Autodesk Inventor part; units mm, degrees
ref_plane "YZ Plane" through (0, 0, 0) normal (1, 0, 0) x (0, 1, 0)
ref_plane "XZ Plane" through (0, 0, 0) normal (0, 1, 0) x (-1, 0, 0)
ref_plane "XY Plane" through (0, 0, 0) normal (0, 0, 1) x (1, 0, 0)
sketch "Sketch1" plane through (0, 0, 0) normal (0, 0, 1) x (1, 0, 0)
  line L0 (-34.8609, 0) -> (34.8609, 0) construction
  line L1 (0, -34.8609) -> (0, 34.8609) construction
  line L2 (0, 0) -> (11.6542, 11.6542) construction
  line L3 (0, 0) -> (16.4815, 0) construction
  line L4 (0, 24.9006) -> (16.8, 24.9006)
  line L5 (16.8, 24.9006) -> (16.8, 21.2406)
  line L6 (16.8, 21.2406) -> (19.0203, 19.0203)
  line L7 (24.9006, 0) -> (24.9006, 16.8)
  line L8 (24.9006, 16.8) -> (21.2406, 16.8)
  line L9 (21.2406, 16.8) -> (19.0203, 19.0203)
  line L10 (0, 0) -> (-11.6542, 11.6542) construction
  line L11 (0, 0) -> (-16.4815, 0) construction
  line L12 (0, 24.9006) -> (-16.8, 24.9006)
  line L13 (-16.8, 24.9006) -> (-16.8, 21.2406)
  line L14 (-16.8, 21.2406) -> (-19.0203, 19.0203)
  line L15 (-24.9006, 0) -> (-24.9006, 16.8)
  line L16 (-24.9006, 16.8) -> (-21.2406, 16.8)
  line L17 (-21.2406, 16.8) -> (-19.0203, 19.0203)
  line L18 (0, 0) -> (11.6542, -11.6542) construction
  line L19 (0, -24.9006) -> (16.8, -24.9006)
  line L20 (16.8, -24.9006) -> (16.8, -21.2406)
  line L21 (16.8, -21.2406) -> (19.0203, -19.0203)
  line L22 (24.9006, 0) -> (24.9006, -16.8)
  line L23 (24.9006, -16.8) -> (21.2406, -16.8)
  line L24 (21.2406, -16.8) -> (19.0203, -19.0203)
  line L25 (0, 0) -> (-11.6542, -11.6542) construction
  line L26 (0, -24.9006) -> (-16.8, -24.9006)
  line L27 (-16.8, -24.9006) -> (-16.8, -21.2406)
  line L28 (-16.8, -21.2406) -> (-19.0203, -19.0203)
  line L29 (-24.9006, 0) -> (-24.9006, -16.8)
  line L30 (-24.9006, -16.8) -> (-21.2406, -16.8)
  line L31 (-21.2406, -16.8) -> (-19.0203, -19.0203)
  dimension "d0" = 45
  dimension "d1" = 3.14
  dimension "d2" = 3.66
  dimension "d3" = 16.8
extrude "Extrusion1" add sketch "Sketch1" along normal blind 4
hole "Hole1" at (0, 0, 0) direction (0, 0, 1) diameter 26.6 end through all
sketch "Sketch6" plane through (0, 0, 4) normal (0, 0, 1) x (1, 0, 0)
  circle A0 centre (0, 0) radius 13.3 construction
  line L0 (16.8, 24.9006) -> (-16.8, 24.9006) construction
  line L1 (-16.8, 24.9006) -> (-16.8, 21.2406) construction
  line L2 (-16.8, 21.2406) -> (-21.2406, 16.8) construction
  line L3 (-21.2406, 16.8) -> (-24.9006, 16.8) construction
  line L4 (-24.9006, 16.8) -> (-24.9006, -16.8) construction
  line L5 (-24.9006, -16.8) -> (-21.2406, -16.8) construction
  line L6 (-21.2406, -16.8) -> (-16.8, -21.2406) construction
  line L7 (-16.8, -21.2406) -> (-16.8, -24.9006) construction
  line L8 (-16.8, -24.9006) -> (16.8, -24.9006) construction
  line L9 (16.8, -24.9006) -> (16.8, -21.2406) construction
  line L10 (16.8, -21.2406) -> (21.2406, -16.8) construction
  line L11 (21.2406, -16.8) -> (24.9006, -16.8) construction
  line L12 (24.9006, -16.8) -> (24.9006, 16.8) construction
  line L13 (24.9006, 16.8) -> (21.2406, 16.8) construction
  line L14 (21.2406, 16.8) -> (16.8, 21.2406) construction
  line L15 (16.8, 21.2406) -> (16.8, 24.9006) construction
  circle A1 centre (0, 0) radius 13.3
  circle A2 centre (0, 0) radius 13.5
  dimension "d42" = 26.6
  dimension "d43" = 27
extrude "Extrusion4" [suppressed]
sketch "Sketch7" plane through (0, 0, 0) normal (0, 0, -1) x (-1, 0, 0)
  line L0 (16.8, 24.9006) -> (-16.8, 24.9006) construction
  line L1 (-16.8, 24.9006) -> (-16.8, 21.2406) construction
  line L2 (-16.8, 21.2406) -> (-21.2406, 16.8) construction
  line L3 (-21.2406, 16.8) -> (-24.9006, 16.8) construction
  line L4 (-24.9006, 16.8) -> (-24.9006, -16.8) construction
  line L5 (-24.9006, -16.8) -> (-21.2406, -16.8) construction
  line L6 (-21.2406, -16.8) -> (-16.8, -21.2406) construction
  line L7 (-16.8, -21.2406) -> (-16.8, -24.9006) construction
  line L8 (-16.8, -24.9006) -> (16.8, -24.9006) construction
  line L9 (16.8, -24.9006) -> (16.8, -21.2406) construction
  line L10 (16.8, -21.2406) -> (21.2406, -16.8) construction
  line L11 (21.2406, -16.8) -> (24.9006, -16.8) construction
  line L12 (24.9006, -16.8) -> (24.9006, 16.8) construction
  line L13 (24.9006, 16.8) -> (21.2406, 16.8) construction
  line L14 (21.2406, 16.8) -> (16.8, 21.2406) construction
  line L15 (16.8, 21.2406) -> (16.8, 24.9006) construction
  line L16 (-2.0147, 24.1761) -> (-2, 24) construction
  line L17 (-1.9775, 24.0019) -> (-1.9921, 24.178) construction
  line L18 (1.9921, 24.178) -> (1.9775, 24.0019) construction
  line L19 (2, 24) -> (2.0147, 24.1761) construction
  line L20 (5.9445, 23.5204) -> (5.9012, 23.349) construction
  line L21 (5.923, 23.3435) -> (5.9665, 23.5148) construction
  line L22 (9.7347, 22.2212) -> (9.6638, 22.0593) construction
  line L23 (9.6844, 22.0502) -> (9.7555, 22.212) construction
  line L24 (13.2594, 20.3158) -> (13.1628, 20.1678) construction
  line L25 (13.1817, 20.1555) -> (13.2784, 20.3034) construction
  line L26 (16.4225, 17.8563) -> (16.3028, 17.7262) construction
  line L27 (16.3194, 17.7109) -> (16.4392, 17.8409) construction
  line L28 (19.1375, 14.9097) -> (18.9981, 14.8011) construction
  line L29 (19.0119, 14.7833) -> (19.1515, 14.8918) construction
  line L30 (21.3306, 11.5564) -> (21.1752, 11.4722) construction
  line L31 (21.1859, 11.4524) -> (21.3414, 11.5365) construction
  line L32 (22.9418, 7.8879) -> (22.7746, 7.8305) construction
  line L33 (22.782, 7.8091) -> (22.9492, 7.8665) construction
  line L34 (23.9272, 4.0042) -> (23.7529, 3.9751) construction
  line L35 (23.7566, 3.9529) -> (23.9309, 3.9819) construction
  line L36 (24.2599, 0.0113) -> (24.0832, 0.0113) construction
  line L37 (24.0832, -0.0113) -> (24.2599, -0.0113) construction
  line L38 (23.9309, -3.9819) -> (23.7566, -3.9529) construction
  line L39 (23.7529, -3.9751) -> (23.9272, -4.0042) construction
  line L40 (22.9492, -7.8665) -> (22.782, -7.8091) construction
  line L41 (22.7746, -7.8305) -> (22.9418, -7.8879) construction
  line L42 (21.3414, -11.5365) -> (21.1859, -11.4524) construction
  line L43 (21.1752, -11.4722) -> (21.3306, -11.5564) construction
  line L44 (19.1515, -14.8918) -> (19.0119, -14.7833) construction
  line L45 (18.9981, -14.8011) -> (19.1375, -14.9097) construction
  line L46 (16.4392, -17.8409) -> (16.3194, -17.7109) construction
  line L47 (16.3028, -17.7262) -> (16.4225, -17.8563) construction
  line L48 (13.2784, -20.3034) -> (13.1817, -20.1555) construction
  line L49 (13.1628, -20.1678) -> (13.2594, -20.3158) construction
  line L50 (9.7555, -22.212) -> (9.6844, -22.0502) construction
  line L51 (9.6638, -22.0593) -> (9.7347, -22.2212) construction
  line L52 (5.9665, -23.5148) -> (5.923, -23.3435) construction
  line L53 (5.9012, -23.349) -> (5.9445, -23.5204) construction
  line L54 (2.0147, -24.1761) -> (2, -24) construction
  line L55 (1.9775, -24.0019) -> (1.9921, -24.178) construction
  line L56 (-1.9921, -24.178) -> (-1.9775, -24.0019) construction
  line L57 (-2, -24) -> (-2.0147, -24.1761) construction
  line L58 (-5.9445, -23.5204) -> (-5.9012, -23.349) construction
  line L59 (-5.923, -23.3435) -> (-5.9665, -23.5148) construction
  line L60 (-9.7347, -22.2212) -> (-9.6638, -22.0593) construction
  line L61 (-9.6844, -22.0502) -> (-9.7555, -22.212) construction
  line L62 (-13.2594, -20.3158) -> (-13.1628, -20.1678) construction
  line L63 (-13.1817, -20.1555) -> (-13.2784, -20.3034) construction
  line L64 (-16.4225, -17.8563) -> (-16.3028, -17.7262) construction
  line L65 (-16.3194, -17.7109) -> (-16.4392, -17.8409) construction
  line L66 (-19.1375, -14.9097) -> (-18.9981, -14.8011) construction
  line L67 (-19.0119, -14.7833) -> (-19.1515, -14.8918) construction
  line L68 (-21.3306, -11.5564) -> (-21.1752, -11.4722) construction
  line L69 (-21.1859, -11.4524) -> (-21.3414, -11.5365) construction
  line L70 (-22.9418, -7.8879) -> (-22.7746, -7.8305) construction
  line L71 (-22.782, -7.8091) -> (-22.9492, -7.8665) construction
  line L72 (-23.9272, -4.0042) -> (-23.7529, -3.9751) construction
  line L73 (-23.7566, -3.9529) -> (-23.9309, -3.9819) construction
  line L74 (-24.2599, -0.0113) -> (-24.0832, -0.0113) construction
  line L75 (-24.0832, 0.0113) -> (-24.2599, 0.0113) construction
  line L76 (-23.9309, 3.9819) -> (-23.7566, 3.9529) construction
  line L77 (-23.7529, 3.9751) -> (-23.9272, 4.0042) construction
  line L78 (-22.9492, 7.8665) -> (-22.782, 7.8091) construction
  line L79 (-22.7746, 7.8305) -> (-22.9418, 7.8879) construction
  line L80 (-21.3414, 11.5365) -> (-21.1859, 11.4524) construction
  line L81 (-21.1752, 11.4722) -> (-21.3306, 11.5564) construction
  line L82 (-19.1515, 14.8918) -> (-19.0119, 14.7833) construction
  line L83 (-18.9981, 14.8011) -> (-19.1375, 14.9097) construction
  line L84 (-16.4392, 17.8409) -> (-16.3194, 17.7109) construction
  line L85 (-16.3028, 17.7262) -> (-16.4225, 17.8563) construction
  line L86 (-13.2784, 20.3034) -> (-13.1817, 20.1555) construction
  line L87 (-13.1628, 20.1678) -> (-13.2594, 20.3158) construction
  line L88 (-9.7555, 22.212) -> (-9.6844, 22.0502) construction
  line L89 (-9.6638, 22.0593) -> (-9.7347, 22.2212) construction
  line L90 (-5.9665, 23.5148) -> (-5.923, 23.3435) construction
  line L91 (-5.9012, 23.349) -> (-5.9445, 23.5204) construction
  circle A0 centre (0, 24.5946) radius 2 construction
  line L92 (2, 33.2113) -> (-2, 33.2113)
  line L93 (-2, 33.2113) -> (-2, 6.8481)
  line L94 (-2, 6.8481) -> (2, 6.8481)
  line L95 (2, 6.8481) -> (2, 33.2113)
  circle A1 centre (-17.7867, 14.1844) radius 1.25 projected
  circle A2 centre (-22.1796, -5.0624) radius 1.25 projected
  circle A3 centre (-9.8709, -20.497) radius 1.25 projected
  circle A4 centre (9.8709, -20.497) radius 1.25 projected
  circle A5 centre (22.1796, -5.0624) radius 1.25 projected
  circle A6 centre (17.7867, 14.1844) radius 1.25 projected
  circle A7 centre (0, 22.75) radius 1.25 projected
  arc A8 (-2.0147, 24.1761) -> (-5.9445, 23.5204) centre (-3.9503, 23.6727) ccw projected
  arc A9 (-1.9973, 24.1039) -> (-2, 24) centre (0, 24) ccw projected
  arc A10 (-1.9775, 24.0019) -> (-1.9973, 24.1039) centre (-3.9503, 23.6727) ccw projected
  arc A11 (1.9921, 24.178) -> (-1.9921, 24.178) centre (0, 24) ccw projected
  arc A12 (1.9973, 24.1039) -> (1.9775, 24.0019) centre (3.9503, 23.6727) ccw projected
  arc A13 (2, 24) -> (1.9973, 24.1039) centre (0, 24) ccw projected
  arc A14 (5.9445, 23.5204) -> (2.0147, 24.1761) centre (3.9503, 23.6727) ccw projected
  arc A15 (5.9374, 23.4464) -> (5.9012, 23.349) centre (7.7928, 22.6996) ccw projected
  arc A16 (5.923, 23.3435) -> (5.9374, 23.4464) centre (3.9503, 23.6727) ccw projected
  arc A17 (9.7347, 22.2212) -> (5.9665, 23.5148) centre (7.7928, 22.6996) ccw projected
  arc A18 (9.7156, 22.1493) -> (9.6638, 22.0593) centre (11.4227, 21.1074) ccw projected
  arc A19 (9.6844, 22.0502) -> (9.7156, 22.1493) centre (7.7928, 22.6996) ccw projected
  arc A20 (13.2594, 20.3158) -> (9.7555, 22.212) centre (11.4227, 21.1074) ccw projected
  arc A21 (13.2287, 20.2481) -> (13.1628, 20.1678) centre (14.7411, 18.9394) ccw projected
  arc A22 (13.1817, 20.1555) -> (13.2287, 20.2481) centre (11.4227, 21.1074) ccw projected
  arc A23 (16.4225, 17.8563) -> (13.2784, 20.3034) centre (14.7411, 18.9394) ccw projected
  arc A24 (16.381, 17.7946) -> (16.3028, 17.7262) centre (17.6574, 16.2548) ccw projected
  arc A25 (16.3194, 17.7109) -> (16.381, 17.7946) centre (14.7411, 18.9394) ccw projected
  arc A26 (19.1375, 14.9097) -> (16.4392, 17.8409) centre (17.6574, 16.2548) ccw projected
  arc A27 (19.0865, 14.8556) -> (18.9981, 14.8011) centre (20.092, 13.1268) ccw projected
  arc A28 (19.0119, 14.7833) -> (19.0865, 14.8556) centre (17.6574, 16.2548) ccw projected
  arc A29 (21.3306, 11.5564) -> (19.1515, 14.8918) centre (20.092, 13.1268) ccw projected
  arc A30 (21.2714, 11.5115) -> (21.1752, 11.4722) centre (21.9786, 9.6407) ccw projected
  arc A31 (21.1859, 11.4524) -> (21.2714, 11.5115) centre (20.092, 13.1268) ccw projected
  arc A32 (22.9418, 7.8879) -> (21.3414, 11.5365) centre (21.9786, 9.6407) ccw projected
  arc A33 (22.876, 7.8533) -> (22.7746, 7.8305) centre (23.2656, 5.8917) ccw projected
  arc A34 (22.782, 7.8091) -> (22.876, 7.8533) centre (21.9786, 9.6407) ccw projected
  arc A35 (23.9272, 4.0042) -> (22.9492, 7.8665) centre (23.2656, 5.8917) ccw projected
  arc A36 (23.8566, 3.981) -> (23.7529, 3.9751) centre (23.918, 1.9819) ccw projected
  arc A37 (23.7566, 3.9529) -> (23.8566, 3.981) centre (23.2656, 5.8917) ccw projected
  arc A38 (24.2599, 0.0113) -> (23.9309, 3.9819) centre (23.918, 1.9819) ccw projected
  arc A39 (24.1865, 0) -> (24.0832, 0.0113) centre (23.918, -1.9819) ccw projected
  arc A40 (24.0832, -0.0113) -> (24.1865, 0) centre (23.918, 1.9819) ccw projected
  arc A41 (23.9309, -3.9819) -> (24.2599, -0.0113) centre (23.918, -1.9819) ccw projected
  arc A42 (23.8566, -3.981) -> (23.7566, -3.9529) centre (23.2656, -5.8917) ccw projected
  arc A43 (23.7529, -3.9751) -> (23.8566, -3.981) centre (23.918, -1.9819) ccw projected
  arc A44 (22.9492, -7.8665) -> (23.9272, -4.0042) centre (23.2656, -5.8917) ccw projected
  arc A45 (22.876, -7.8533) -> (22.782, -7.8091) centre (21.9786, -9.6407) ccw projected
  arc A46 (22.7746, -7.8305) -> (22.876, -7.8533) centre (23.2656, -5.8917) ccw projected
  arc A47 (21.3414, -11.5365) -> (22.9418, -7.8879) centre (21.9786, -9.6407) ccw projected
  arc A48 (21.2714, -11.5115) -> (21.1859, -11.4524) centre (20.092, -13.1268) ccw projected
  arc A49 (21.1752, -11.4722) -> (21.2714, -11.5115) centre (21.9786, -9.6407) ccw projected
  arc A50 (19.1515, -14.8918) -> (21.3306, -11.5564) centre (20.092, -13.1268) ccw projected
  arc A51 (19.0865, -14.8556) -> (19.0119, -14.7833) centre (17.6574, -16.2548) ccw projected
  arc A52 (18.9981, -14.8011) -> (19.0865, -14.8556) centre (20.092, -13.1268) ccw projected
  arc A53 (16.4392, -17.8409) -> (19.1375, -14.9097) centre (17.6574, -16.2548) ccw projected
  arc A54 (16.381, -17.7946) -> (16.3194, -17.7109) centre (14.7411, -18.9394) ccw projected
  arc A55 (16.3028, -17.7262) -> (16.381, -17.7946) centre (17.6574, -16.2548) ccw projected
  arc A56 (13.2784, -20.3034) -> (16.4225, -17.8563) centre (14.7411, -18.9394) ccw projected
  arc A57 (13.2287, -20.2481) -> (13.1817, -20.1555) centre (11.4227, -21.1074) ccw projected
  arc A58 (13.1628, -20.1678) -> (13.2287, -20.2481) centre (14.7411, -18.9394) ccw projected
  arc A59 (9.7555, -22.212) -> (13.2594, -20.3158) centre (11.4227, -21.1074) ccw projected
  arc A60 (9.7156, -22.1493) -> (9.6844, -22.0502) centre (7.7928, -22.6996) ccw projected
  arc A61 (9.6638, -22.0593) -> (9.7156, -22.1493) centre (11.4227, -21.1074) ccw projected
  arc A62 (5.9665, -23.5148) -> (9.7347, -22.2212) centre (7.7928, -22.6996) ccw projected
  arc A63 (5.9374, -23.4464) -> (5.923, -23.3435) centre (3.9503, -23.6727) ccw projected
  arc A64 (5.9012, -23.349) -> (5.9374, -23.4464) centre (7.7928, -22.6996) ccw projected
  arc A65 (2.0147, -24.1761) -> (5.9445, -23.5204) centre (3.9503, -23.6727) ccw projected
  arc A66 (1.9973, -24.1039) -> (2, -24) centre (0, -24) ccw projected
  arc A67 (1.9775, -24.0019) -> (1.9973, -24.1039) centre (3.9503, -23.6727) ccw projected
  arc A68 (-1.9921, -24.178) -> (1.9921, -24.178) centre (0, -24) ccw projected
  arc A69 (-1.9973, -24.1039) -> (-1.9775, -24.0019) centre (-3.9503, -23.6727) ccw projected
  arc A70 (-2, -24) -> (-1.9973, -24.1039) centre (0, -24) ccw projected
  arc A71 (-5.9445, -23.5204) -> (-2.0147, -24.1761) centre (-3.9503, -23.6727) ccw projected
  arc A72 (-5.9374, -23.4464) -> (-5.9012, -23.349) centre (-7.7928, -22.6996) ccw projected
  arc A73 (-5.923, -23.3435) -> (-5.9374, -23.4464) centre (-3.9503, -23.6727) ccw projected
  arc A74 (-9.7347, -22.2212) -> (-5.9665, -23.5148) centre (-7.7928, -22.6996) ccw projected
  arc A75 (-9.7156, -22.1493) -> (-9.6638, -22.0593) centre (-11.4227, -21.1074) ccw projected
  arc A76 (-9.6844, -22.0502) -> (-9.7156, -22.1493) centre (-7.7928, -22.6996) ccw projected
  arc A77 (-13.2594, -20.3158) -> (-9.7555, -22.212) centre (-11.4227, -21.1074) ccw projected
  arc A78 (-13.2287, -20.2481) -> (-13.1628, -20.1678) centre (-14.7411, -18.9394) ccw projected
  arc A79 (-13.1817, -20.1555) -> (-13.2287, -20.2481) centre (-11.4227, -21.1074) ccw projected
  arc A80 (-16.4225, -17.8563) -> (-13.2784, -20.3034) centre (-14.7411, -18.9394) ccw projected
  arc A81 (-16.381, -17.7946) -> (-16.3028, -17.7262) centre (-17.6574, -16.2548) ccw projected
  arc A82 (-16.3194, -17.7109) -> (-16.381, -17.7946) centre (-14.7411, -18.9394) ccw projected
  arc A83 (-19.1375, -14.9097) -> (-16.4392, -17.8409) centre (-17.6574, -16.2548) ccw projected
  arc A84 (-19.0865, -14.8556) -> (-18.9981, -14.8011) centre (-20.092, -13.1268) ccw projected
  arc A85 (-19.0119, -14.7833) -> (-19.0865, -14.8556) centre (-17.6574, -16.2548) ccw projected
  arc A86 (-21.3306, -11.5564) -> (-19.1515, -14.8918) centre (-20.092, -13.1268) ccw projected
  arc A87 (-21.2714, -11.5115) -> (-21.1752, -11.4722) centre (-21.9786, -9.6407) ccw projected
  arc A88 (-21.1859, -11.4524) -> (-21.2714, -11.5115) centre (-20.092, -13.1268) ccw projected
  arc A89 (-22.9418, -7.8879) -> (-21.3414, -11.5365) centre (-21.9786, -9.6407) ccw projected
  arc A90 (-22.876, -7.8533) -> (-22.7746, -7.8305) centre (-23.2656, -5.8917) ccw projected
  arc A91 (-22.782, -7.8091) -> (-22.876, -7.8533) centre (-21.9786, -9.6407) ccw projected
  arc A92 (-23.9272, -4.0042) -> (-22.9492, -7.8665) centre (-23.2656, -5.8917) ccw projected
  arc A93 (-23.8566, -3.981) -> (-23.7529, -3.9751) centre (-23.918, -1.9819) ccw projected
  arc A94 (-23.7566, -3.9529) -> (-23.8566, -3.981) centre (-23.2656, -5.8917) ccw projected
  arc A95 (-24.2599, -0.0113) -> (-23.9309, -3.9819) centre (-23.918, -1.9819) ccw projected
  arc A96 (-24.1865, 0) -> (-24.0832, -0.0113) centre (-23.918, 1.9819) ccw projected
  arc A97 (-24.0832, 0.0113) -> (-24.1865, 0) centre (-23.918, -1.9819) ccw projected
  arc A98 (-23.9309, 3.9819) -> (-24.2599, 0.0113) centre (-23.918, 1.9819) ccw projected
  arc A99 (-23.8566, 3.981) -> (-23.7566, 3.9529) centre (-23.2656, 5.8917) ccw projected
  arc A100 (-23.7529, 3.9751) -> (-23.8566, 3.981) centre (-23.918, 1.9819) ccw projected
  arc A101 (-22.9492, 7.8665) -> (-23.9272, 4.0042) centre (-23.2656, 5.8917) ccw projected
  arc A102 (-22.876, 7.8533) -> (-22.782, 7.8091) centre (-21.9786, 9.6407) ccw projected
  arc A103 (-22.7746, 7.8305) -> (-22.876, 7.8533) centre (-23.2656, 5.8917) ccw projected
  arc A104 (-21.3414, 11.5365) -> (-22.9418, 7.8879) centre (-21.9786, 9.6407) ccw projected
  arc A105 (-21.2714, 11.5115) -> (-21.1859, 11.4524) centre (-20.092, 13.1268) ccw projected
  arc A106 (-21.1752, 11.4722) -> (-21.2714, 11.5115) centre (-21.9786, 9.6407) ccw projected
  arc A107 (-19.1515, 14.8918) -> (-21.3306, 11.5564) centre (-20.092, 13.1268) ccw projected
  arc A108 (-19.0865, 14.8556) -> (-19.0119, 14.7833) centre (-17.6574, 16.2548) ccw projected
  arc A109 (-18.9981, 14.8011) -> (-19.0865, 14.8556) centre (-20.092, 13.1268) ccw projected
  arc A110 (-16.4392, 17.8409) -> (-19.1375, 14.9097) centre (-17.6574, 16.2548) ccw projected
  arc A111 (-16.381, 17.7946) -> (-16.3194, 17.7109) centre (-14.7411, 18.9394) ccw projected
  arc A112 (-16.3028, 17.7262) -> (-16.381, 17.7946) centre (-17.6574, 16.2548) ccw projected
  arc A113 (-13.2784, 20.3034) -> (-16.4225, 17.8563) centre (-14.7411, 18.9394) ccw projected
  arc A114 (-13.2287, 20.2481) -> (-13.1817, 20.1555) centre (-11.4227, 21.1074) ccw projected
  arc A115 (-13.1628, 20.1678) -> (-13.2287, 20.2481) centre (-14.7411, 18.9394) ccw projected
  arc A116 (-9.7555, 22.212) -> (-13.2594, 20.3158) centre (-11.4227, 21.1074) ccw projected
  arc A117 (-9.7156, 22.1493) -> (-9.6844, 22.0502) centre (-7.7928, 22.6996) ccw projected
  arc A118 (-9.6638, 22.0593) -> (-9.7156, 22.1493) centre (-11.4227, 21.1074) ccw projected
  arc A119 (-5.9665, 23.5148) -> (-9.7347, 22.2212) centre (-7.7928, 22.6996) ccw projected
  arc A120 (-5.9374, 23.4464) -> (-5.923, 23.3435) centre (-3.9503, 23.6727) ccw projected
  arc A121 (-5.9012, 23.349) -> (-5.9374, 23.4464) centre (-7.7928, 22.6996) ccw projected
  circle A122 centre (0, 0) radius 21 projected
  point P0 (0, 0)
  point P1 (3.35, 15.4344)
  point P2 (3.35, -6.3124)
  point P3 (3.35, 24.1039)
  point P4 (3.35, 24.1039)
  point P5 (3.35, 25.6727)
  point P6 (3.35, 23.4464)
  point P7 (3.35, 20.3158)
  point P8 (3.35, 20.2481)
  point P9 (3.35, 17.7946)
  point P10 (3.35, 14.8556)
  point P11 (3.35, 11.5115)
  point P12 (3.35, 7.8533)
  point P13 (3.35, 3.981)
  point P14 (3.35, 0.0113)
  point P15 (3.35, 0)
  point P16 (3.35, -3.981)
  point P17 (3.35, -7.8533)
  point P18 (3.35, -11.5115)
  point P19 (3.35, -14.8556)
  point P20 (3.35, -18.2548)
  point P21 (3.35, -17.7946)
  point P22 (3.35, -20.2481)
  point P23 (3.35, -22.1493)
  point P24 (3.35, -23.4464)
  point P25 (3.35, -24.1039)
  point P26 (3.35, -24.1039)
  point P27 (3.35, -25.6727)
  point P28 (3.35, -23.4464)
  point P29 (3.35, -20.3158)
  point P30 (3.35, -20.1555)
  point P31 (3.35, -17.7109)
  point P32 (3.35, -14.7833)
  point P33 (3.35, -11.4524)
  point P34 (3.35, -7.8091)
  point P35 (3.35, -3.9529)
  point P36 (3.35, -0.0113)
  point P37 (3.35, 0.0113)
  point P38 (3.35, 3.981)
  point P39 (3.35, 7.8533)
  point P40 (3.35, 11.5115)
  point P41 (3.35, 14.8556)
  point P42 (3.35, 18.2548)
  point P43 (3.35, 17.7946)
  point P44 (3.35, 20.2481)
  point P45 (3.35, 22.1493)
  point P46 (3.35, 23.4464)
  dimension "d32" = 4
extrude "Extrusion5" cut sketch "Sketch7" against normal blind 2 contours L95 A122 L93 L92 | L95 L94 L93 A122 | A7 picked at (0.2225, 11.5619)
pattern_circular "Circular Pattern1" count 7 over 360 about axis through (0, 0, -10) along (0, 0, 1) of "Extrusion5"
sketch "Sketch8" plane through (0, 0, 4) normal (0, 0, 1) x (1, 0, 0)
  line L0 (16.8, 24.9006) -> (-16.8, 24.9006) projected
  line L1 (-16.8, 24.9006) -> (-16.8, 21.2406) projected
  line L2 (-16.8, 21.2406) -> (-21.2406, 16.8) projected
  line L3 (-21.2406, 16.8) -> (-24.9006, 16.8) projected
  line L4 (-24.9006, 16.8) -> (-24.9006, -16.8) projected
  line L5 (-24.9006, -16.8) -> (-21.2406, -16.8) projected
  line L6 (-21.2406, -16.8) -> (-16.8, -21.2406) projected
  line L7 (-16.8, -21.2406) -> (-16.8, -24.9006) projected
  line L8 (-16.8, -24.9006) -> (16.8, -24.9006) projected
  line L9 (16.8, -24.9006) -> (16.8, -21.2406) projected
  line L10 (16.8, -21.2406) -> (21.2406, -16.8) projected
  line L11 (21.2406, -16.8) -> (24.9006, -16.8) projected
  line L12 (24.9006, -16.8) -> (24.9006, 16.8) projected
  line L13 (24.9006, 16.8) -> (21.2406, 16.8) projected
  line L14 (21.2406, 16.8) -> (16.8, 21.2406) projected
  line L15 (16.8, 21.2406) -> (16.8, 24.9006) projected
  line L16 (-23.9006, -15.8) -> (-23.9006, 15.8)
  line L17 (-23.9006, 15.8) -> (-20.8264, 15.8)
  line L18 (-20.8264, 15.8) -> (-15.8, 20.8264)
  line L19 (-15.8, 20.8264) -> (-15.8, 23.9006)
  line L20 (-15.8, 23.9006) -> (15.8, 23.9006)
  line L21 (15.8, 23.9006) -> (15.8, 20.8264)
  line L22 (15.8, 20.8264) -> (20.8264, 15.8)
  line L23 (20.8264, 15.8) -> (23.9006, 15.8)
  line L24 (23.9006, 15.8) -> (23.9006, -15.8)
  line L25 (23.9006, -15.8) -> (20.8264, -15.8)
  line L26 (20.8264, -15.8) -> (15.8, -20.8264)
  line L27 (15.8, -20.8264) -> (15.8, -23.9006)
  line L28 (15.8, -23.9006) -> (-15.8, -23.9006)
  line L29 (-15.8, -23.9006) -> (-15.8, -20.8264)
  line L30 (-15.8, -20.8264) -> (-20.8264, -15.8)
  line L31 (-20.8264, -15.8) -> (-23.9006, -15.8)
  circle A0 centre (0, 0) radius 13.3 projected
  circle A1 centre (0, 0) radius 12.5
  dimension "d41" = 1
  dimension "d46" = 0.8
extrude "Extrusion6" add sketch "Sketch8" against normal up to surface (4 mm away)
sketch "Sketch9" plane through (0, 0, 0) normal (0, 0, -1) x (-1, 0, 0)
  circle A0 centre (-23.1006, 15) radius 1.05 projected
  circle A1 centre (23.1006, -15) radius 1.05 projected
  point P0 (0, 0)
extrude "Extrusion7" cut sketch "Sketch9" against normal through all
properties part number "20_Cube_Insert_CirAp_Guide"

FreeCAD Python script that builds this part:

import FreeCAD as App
import Part
import Sketcher

doc = App.newDocument("Part")
body = doc.addObject("PartDesign::Body", "Body")

sketch1 = doc.addObject("Sketcher::SketchObject", "Sketch")
body.addObject(sketch1)
sketch1.AttachmentSupport = (doc.XY_Plane, [""])
sketch1.MapMode = "FlatFace"
sketch1.addGeometry([
    Part.LineSegment(App.Vector(16.8, 24.9, 0), App.Vector(-16.8, 24.9, 0)),
    Part.LineSegment(App.Vector(-16.8, 24.9, 0), App.Vector(-16.8, 21.2, 0)),
    Part.LineSegment(App.Vector(-16.8, 21.2, 0), App.Vector(-21.2, 16.8, 0)),
    Part.LineSegment(App.Vector(-21.2, 16.8, 0), App.Vector(-24.9, 16.8, 0)),
    Part.LineSegment(App.Vector(-24.9, 16.8, 0), App.Vector(-24.9, -16.8, 0)),
    Part.LineSegment(App.Vector(-24.9, -16.8, 0), App.Vector(-21.2, -16.8, 0)),
    Part.LineSegment(App.Vector(-21.2, -16.8, 0), App.Vector(-16.8, -21.2, 0)),
    Part.LineSegment(App.Vector(-16.8, -21.2, 0), App.Vector(-16.8, -24.9, 0)),
    Part.LineSegment(App.Vector(-16.8, -24.9, 0), App.Vector(16.8, -24.9, 0)),
    Part.LineSegment(App.Vector(16.8, -24.9, 0), App.Vector(16.8, -21.2, 0)),
    Part.LineSegment(App.Vector(16.8, -21.2, 0), App.Vector(21.2, -16.8, 0)),
    Part.LineSegment(App.Vector(21.2, -16.8, 0), App.Vector(24.9, -16.8, 0)),
    Part.LineSegment(App.Vector(24.9, -16.8, 0), App.Vector(24.9, 16.8, 0)),
    Part.LineSegment(App.Vector(24.9, 16.8, 0), App.Vector(21.2, 16.8, 0)),
    Part.LineSegment(App.Vector(21.2, 16.8, 0), App.Vector(16.8, 21.2, 0)),
    Part.LineSegment(App.Vector(16.8, 21.2, 0), App.Vector(16.8, 24.9, 0)),
], False)
sketch1.addConstraint([
    Sketcher.Constraint("Coincident", 0, 2, 1, 1),
    Sketcher.Constraint("Coincident", 1, 2, 2, 1),
    Sketcher.Constraint("Coincident", 2, 2, 3, 1),
    Sketcher.Constraint("Coincident", 3, 2, 4, 1),
    Sketcher.Constraint("Coincident", 4, 2, 5, 1),
    Sketcher.Constraint("Coincident", 5, 2, 6, 1),
    Sketcher.Constraint("Coincident", 6, 2, 7, 1),
    Sketcher.Constraint("Coincident", 7, 2, 8, 1),
    Sketcher.Constraint("Coincident", 8, 2, 9, 1),
    Sketcher.Constraint("Coincident", 9, 2, 10, 1),
    Sketcher.Constraint("Coincident", 10, 2, 11, 1),
    Sketcher.Constraint("Coincident", 11, 2, 12, 1),
    Sketcher.Constraint("Coincident", 12, 2, 13, 1),
    Sketcher.Constraint("Coincident", 13, 2, 14, 1),
    Sketcher.Constraint("Coincident", 14, 2, 15, 1),
    Sketcher.Constraint("Coincident", 15, 2, 0, 1),
    Sketcher.Constraint("Horizontal", 0),
    Sketcher.Constraint("Vertical", 1),
    Sketcher.Constraint("Horizontal", 3),
    Sketcher.Constraint("Vertical", 4),
    Sketcher.Constraint("Horizontal", 5),
    Sketcher.Constraint("Vertical", 7),
    Sketcher.Constraint("Horizontal", 8),
    Sketcher.Constraint("Vertical", 9),
    Sketcher.Constraint("Horizontal", 11),
    Sketcher.Constraint("Vertical", 12),
    Sketcher.Constraint("Horizontal", 13),
    Sketcher.Constraint("Vertical", 15),
    Sketcher.Constraint("Symmetric", 0, 2, 8, 2, -1, 1),
    Sketcher.Constraint("Symmetric", 2, 2, 10, 2, -1, 1),
    Sketcher.Constraint("Symmetric", 4, 2, 12, 2, -1, 1),
    Sketcher.Constraint("Symmetric", 6, 2, 14, 2, -1, 1),
    Sketcher.Constraint("Symmetric", 6, 2, 9, 2, -2),
    Sketcher.Constraint("Symmetric", 5, 2, 10, 2, -2),
    Sketcher.Constraint("Perpendicular", 2, 6),
    Sketcher.Constraint("Perpendicular", 6, 10),
    Sketcher.Constraint("Perpendicular", 10, 14),
    Sketcher.Constraint("Equal", 13, 1),
    Sketcher.Constraint("Equal", 8, 4),
    Sketcher.Constraint("DistanceX", 3, 2, 3, 1, 3.66),
    Sketcher.Constraint("DistanceX", 0, 2, -1, 1, 16.8),
    Sketcher.Constraint("Distance", 2, 6.28),
])
pad1 = doc.addObject("PartDesign::Pad", "Pad")
body.addObject(pad1)
pad1.Profile = sketch1
pad1.Length = 4

sketch2 = doc.addObject("Sketcher::SketchObject", "Sketch001")
body.addObject(sketch2)
sketch2.AttachmentSupport = (doc.XY_Plane, [""])
sketch2.MapMode = "FlatFace"
sketch2.addGeometry(Part.Circle(App.Vector(0, 0, 0), App.Vector(0, 0, 1), 13), False)
sketch2.addConstraint([
    Sketcher.Constraint("Coincident", 0, 3, -1, 1),
    Sketcher.Constraint("Diameter", 0, 26.6),
])
doc.recompute()
hole = doc.addObject("PartDesign::Hole", "Hole")
body.addObject(hole)
hole.Profile = sketch2
hole.ThreadType = "None"
hole.Diameter = 26.6
hole.DepthType = "ThroughAll"
hole.Reversed = True

sketch3 = doc.addObject("Sketcher::SketchObject", "Sketch002")
body.addObject(sketch3)
sketch3.AttachmentSupport = (doc.XY_Plane, [""])
sketch3.MapMode = "FlatFace"
sketch3.addGeometry([
    Part.LineSegment(App.Vector(-2, 33.2, 0), App.Vector(2, 33.2, 0)),
    Part.LineSegment(App.Vector(2, 33.2, 0), App.Vector(2, 6.8, 0)),
    Part.LineSegment(App.Vector(2, 6.8, 0), App.Vector(-2, 6.8, 0)),
    Part.LineSegment(App.Vector(-2, 6.8, 0), App.Vector(-2, 33.2, 0)),
], False)
sketch3.addConstraint([
    Sketcher.Constraint("Coincident", 0, 2, 1, 1),
    Sketcher.Constraint("Coincident", 1, 2, 2, 1),
    Sketcher.Constraint("Coincident", 2, 2, 3, 1),
    Sketcher.Constraint("Coincident", 3, 2, 0, 1),
    Sketcher.Constraint("Horizontal", 0),
    Sketcher.Constraint("Vertical", 1),
    Sketcher.Constraint("Horizontal", 2),
    Sketcher.Constraint("Vertical", 3),
    Sketcher.Constraint("DistanceX", 0, 1, 0, 2, 4.0),
    Sketcher.Constraint("DistanceX", -1, 1, 0, 2, 2.0),
    Sketcher.Constraint("DistanceY", 1, 2, 1, 1, 26.3632),
    Sketcher.Constraint("DistanceY", -1, 1, 1, 2, 6.848),
])
pocket1 = doc.addObject("PartDesign::Pocket", "Pocket")
body.addObject(pocket1)
pocket1.Profile = sketch3
pocket1.Length = 2
pocket1.Reversed = True
doc.recompute()

polarpattern = doc.addObject("PartDesign::PolarPattern", "PolarPattern")
body.addObject(polarpattern)
polarpattern.Originals = [pocket1]
polarpattern.Axis = (doc.Z_Axis, [""])
polarpattern.Angle = 360
polarpattern.Occurrences = 7
body.Tip = polarpattern

sketch4 = doc.addObject("Sketcher::SketchObject", "Sketch003")
body.addObject(sketch4)
sketch4.AttachmentSupport = (doc.XY_Plane, [""])
sketch4.MapMode = "FlatFace"
sketch4.AttachmentOffset = App.Placement(App.Vector(0, 0, 4), App.Rotation())
sketch4.addGeometry([
    Part.LineSegment(App.Vector(16.8, 21.2, 0), App.Vector(16.8, 24.9, 0)),
    Part.LineSegment(App.Vector(16.8, 24.9, 0), App.Vector(-16.8, 24.9, 0)),
    Part.LineSegment(App.Vector(-16.8, 24.9, 0), App.Vector(-16.8, 21.2, 0)),
    Part.LineSegment(App.Vector(-16.8, 21.2, 0), App.Vector(-21.2, 16.8, 0)),
    Part.LineSegment(App.Vector(-21.2, 16.8, 0), App.Vector(-24.9, 16.8, 0)),
    Part.LineSegment(App.Vector(-24.9, 16.8, 0), App.Vector(-24.9, -16.8, 0)),
    Part.LineSegment(App.Vector(-24.9, -16.8, 0), App.Vector(-21.2, -16.8, 0)),
    Part.LineSegment(App.Vector(-21.2, -16.8, 0), App.Vector(-16.8, -21.2, 0)),
    Part.LineSegment(App.Vector(-16.8, -21.2, 0), App.Vector(-16.8, -24.9, 0)),
    Part.LineSegment(App.Vector(-16.8, -24.9, 0), App.Vector(16.8, -24.9, 0)),
    Part.LineSegment(App.Vector(16.8, -24.9, 0), App.Vector(16.8, -21.2, 0)),
    Part.LineSegment(App.Vector(16.8, -21.2, 0), App.Vector(21.2, -16.8, 0)),
    Part.LineSegment(App.Vector(21.2, -16.8, 0), App.Vector(24.9, -16.8, 0)),
    Part.LineSegment(App.Vector(24.9, -16.8, 0), App.Vector(24.9, 16.8, 0)),
    Part.LineSegment(App.Vector(24.9, 16.8, 0), App.Vector(21.2, 16.8, 0)),
    Part.LineSegment(App.Vector(21.2, 16.8, 0), App.Vector(16.8, 21.2, 0)),
    Part.LineSegment(App.Vector(-20.8, -15.8, 0), App.Vector(-23.9, -15.8, 0)),
    Part.LineSegment(App.Vector(-23.9, -15.8, 0), App.Vector(-23.9, 15.8, 0)),
    Part.LineSegment(App.Vector(-23.9, 15.8, 0), App.Vector(-20.8, 15.8, 0)),
    Part.LineSegment(App.Vector(-20.8, 15.8, 0), App.Vector(-15.8, 20.8, 0)),
    Part.LineSegment(App.Vector(-15.8, 20.8, 0), App.Vector(-15.8, 23.9, 0)),
    Part.LineSegment(App.Vector(-15.8, 23.9, 0), App.Vector(15.8, 23.9, 0)),
    Part.LineSegment(App.Vector(15.8, 23.9, 0), App.Vector(15.8, 20.8, 0)),
    Part.LineSegment(App.Vector(15.8, 20.8, 0), App.Vector(20.8, 15.8, 0)),
    Part.LineSegment(App.Vector(20.8, 15.8, 0), App.Vector(23.9, 15.8, 0)),
    Part.LineSegment(App.Vector(23.9, 15.8, 0), App.Vector(23.9, -15.8, 0)),
    Part.LineSegment(App.Vector(23.9, -15.8, 0), App.Vector(20.8, -15.8, 0)),
    Part.LineSegment(App.Vector(20.8, -15.8, 0), App.Vector(15.8, -20.8, 0)),
    Part.LineSegment(App.Vector(15.8, -20.8, 0), App.Vector(15.8, -23.9, 0)),
    Part.LineSegment(App.Vector(15.8, -23.9, 0), App.Vector(-15.8, -23.9, 0)),
    Part.LineSegment(App.Vector(-15.8, -23.9, 0), App.Vector(-15.8, -20.8, 0)),
    Part.LineSegment(App.Vector(-15.8, -20.8, 0), App.Vector(-20.8, -15.8, 0)),
    Part.Circle(App.Vector(0, 0, 0), App.Vector(0, 0, 1), 13.3),
    Part.Circle(App.Vector(0, 0, 0), App.Vector(0, 0, 1), 12.5),
], False)
sketch4.addConstraint([
    Sketcher.Constraint("Coincident", 0, 2, 1, 1),
    Sketcher.Constraint("Coincident", 1, 2, 2, 1),
    Sketcher.Constraint("Coincident", 2, 2, 3, 1),
    Sketcher.Constraint("Coincident", 3, 2, 4, 1),
    Sketcher.Constraint("Coincident", 4, 2, 5, 1),
    Sketcher.Constraint("Coincident", 5, 2, 6, 1),
    Sketcher.Constraint("Coincident", 6, 2, 7, 1),
    Sketcher.Constraint("Coincident", 7, 2, 8, 1),
    Sketcher.Constraint("Coincident", 8, 2, 9, 1),
    Sketcher.Constraint("Coincident", 9, 2, 10, 1),
    Sketcher.Constraint("Coincident", 10, 2, 11, 1),
    Sketcher.Constraint("Coincident", 11, 2, 12, 1),
    Sketcher.Constraint("Coincident", 12, 2, 13, 1),
    Sketcher.Constraint("Coincident", 13, 2, 14, 1),
    Sketcher.Constraint("Coincident", 14, 2, 15, 1),
    Sketcher.Constraint("Coincident", 15, 2, 0, 1),
    Sketcher.Constraint("Coincident", 16, 2, 17, 1),
    Sketcher.Constraint("Coincident", 17, 2, 18, 1),
    Sketcher.Constraint("Coincident", 18, 2, 19, 1),
    Sketcher.Constraint("Coincident", 19, 2, 20, 1),
    Sketcher.Constraint("Coincident", 20, 2, 21, 1),
    Sketcher.Constraint("Coincident", 21, 2, 22, 1),
    Sketcher.Constraint("Coincident", 22, 2, 23, 1),
    Sketcher.Constraint("Coincident", 23, 2, 24, 1),
    Sketcher.Constraint("Coincident", 24, 2, 25, 1),
    Sketcher.Constraint("Coincident", 25, 2, 26, 1),
    Sketcher.Constraint("Coincident", 26, 2, 27, 1),
    Sketcher.Constraint("Coincident", 27, 2, 28, 1),
    Sketcher.Constraint("Coincident", 28, 2, 29, 1),
    Sketcher.Constraint("Coincident", 29, 2, 30, 1),
    Sketcher.Constraint("Coincident", 30, 2, 31, 1),
    Sketcher.Constraint("Coincident", 31, 2, 16, 1),
    Sketcher.Constraint("Vertical", 0),
    Sketcher.Constraint("Horizontal", 1),
    Sketcher.Constraint("Vertical", 2),
    Sketcher.Constraint("Horizontal", 4),
    Sketcher.Constraint("Vertical", 5),
    Sketcher.Constraint("Horizontal", 6),
    Sketcher.Constraint("Vertical", 8),
    Sketcher.Constraint("Horizontal", 9),
    Sketcher.Constraint("Vertical", 10),
    Sketcher.Constraint("Horizontal", 12),
    Sketcher.Constraint("Vertical", 13),
    Sketcher.Constraint("Horizontal", 14),
    Sketcher.Constraint("Horizontal", 16),
    Sketcher.Constraint("Vertical", 17),
    Sketcher.Constraint("Horizontal", 18),
    Sketcher.Constraint("Vertical", 20),
    Sketcher.Constraint("Horizontal", 21),
    Sketcher.Constraint("Vertical", 22),
    Sketcher.Constraint("Horizontal", 24),
    Sketcher.Constraint("Vertical", 25),
    Sketcher.Constraint("Horizontal", 26),
    Sketcher.Constraint("Vertical", 28),
    Sketcher.Constraint("Horizontal", 29),
    Sketcher.Constraint("Vertical", 30),
    Sketcher.Constraint("Coincident", 32, 3, -1, 1),
    Sketcher.Constraint("Coincident", 33, 3, -1, 1),
    Sketcher.Constraint("Symmetric", 0, 2, 8, 2, -1, 1),
    Sketcher.Constraint("Symmetric", 2, 2, 10, 2, -1, 1),
    Sketcher.Constraint("Symmetric", 3, 2, 11, 2, -1, 1),
    Sketcher.Constraint("Symmetric", 5, 2, 13, 2, -1, 1),
    Sketcher.Constraint("Symmetric", 16, 2, 24, 2, -1, 1),
    Sketcher.Constraint("Symmetric", 18, 2, 26, 2, -1, 1),
    Sketcher.Constraint("Symmetric", 19, 2, 27, 2, -1, 1),
    Sketcher.Constraint("Symmetric", 21, 2, 29, 2, -1, 1),
    Sketcher.Constraint("Symmetric", 7, 2, 10, 2, -2),
    Sketcher.Constraint("Symmetric", 6, 2, 11, 2, -2),
    Sketcher.Constraint("Symmetric", 19, 2, 22, 2, -2),
    Sketcher.Constraint("Symmetric", 18, 2, 23, 2, -2),
    Sketcher.Constraint("Perpendicular", 3, 7),
    Sketcher.Constraint("Perpendicular", 11, 15),
    Sketcher.Constraint("Perpendicular", 15, 19),
    Sketcher.Constraint("Perpendicular", 27, 31),
    Sketcher.Constraint("Horizontal", 2, 2, 15, 2),
    Sketcher.Constraint("Horizontal", 27, 2, 30, 2),
    Sketcher.Constraint("Equal", 14, 0),
    Sketcher.Constraint("Equal", 9, 5),
    Sketcher.Constraint("Equal", 29, 17),
    Sketcher.Constraint("Equal", 26, 20),
    Sketcher.Constraint("Diameter", 33, 25.0),
    Sketcher.Constraint("DistanceX", 5, 2, 16, 2, 1.0),
    Sketcher.Constraint("DistanceY", 5, 2, 16, 2, 1.0),
    Sketcher.Constraint("Diameter", 32, 26.6),
    Sketcher.Constraint("DistanceX", 1, 2, 1, 1, 33.6),
    Sketcher.Constraint("DistanceX", 4, 2, 4, 1, 3.66),
    Sketcher.Constraint("Distance", 3, 6.28),
    Sketcher.Constraint("DistanceX", 16, 2, 16, 1, 3.0742),
])
pad2 = doc.addObject("PartDesign::Pad", "Pad001")
body.addObject(pad2)
pad2.Profile = sketch4
pad2.Length = 4
pad2.Reversed = True

sketch5 = doc.addObject("Sketcher::SketchObject", "Sketch004")
body.addObject(sketch5)
sketch5.AttachmentSupport = (doc.XY_Plane, [""])
sketch5.MapMode = "FlatFace"
sketch5.addGeometry([
    Part.Circle(App.Vector(23.1, 15, 0), App.Vector(0, 0, 1), 1.1),
    Part.Circle(App.Vector(-23.1, -15, 0), App.Vector(0, 0, 1), 1.1),
], False)
sketch5.addConstraint([
    Sketcher.Constraint("Equal", 0, 1),
    Sketcher.Constraint("Symmetric", 0, 3, 1, 3, -1, 1),
    Sketcher.Constraint("Diameter", 0, 2.1),
    Sketcher.Constraint("DistanceY", -1, 1, 0, 3, 15.0),
    Sketcher.Constraint("DistanceX", -1, 1, 0, 3, 23.1006),
])
pocket2 = doc.addObject("PartDesign::Pocket", "Pocket001")
body.addObject(pocket2)
pocket2.Profile = sketch5
pocket2.Type = "ThroughAll"
pocket2.Reversed = True

doc.recompute()
